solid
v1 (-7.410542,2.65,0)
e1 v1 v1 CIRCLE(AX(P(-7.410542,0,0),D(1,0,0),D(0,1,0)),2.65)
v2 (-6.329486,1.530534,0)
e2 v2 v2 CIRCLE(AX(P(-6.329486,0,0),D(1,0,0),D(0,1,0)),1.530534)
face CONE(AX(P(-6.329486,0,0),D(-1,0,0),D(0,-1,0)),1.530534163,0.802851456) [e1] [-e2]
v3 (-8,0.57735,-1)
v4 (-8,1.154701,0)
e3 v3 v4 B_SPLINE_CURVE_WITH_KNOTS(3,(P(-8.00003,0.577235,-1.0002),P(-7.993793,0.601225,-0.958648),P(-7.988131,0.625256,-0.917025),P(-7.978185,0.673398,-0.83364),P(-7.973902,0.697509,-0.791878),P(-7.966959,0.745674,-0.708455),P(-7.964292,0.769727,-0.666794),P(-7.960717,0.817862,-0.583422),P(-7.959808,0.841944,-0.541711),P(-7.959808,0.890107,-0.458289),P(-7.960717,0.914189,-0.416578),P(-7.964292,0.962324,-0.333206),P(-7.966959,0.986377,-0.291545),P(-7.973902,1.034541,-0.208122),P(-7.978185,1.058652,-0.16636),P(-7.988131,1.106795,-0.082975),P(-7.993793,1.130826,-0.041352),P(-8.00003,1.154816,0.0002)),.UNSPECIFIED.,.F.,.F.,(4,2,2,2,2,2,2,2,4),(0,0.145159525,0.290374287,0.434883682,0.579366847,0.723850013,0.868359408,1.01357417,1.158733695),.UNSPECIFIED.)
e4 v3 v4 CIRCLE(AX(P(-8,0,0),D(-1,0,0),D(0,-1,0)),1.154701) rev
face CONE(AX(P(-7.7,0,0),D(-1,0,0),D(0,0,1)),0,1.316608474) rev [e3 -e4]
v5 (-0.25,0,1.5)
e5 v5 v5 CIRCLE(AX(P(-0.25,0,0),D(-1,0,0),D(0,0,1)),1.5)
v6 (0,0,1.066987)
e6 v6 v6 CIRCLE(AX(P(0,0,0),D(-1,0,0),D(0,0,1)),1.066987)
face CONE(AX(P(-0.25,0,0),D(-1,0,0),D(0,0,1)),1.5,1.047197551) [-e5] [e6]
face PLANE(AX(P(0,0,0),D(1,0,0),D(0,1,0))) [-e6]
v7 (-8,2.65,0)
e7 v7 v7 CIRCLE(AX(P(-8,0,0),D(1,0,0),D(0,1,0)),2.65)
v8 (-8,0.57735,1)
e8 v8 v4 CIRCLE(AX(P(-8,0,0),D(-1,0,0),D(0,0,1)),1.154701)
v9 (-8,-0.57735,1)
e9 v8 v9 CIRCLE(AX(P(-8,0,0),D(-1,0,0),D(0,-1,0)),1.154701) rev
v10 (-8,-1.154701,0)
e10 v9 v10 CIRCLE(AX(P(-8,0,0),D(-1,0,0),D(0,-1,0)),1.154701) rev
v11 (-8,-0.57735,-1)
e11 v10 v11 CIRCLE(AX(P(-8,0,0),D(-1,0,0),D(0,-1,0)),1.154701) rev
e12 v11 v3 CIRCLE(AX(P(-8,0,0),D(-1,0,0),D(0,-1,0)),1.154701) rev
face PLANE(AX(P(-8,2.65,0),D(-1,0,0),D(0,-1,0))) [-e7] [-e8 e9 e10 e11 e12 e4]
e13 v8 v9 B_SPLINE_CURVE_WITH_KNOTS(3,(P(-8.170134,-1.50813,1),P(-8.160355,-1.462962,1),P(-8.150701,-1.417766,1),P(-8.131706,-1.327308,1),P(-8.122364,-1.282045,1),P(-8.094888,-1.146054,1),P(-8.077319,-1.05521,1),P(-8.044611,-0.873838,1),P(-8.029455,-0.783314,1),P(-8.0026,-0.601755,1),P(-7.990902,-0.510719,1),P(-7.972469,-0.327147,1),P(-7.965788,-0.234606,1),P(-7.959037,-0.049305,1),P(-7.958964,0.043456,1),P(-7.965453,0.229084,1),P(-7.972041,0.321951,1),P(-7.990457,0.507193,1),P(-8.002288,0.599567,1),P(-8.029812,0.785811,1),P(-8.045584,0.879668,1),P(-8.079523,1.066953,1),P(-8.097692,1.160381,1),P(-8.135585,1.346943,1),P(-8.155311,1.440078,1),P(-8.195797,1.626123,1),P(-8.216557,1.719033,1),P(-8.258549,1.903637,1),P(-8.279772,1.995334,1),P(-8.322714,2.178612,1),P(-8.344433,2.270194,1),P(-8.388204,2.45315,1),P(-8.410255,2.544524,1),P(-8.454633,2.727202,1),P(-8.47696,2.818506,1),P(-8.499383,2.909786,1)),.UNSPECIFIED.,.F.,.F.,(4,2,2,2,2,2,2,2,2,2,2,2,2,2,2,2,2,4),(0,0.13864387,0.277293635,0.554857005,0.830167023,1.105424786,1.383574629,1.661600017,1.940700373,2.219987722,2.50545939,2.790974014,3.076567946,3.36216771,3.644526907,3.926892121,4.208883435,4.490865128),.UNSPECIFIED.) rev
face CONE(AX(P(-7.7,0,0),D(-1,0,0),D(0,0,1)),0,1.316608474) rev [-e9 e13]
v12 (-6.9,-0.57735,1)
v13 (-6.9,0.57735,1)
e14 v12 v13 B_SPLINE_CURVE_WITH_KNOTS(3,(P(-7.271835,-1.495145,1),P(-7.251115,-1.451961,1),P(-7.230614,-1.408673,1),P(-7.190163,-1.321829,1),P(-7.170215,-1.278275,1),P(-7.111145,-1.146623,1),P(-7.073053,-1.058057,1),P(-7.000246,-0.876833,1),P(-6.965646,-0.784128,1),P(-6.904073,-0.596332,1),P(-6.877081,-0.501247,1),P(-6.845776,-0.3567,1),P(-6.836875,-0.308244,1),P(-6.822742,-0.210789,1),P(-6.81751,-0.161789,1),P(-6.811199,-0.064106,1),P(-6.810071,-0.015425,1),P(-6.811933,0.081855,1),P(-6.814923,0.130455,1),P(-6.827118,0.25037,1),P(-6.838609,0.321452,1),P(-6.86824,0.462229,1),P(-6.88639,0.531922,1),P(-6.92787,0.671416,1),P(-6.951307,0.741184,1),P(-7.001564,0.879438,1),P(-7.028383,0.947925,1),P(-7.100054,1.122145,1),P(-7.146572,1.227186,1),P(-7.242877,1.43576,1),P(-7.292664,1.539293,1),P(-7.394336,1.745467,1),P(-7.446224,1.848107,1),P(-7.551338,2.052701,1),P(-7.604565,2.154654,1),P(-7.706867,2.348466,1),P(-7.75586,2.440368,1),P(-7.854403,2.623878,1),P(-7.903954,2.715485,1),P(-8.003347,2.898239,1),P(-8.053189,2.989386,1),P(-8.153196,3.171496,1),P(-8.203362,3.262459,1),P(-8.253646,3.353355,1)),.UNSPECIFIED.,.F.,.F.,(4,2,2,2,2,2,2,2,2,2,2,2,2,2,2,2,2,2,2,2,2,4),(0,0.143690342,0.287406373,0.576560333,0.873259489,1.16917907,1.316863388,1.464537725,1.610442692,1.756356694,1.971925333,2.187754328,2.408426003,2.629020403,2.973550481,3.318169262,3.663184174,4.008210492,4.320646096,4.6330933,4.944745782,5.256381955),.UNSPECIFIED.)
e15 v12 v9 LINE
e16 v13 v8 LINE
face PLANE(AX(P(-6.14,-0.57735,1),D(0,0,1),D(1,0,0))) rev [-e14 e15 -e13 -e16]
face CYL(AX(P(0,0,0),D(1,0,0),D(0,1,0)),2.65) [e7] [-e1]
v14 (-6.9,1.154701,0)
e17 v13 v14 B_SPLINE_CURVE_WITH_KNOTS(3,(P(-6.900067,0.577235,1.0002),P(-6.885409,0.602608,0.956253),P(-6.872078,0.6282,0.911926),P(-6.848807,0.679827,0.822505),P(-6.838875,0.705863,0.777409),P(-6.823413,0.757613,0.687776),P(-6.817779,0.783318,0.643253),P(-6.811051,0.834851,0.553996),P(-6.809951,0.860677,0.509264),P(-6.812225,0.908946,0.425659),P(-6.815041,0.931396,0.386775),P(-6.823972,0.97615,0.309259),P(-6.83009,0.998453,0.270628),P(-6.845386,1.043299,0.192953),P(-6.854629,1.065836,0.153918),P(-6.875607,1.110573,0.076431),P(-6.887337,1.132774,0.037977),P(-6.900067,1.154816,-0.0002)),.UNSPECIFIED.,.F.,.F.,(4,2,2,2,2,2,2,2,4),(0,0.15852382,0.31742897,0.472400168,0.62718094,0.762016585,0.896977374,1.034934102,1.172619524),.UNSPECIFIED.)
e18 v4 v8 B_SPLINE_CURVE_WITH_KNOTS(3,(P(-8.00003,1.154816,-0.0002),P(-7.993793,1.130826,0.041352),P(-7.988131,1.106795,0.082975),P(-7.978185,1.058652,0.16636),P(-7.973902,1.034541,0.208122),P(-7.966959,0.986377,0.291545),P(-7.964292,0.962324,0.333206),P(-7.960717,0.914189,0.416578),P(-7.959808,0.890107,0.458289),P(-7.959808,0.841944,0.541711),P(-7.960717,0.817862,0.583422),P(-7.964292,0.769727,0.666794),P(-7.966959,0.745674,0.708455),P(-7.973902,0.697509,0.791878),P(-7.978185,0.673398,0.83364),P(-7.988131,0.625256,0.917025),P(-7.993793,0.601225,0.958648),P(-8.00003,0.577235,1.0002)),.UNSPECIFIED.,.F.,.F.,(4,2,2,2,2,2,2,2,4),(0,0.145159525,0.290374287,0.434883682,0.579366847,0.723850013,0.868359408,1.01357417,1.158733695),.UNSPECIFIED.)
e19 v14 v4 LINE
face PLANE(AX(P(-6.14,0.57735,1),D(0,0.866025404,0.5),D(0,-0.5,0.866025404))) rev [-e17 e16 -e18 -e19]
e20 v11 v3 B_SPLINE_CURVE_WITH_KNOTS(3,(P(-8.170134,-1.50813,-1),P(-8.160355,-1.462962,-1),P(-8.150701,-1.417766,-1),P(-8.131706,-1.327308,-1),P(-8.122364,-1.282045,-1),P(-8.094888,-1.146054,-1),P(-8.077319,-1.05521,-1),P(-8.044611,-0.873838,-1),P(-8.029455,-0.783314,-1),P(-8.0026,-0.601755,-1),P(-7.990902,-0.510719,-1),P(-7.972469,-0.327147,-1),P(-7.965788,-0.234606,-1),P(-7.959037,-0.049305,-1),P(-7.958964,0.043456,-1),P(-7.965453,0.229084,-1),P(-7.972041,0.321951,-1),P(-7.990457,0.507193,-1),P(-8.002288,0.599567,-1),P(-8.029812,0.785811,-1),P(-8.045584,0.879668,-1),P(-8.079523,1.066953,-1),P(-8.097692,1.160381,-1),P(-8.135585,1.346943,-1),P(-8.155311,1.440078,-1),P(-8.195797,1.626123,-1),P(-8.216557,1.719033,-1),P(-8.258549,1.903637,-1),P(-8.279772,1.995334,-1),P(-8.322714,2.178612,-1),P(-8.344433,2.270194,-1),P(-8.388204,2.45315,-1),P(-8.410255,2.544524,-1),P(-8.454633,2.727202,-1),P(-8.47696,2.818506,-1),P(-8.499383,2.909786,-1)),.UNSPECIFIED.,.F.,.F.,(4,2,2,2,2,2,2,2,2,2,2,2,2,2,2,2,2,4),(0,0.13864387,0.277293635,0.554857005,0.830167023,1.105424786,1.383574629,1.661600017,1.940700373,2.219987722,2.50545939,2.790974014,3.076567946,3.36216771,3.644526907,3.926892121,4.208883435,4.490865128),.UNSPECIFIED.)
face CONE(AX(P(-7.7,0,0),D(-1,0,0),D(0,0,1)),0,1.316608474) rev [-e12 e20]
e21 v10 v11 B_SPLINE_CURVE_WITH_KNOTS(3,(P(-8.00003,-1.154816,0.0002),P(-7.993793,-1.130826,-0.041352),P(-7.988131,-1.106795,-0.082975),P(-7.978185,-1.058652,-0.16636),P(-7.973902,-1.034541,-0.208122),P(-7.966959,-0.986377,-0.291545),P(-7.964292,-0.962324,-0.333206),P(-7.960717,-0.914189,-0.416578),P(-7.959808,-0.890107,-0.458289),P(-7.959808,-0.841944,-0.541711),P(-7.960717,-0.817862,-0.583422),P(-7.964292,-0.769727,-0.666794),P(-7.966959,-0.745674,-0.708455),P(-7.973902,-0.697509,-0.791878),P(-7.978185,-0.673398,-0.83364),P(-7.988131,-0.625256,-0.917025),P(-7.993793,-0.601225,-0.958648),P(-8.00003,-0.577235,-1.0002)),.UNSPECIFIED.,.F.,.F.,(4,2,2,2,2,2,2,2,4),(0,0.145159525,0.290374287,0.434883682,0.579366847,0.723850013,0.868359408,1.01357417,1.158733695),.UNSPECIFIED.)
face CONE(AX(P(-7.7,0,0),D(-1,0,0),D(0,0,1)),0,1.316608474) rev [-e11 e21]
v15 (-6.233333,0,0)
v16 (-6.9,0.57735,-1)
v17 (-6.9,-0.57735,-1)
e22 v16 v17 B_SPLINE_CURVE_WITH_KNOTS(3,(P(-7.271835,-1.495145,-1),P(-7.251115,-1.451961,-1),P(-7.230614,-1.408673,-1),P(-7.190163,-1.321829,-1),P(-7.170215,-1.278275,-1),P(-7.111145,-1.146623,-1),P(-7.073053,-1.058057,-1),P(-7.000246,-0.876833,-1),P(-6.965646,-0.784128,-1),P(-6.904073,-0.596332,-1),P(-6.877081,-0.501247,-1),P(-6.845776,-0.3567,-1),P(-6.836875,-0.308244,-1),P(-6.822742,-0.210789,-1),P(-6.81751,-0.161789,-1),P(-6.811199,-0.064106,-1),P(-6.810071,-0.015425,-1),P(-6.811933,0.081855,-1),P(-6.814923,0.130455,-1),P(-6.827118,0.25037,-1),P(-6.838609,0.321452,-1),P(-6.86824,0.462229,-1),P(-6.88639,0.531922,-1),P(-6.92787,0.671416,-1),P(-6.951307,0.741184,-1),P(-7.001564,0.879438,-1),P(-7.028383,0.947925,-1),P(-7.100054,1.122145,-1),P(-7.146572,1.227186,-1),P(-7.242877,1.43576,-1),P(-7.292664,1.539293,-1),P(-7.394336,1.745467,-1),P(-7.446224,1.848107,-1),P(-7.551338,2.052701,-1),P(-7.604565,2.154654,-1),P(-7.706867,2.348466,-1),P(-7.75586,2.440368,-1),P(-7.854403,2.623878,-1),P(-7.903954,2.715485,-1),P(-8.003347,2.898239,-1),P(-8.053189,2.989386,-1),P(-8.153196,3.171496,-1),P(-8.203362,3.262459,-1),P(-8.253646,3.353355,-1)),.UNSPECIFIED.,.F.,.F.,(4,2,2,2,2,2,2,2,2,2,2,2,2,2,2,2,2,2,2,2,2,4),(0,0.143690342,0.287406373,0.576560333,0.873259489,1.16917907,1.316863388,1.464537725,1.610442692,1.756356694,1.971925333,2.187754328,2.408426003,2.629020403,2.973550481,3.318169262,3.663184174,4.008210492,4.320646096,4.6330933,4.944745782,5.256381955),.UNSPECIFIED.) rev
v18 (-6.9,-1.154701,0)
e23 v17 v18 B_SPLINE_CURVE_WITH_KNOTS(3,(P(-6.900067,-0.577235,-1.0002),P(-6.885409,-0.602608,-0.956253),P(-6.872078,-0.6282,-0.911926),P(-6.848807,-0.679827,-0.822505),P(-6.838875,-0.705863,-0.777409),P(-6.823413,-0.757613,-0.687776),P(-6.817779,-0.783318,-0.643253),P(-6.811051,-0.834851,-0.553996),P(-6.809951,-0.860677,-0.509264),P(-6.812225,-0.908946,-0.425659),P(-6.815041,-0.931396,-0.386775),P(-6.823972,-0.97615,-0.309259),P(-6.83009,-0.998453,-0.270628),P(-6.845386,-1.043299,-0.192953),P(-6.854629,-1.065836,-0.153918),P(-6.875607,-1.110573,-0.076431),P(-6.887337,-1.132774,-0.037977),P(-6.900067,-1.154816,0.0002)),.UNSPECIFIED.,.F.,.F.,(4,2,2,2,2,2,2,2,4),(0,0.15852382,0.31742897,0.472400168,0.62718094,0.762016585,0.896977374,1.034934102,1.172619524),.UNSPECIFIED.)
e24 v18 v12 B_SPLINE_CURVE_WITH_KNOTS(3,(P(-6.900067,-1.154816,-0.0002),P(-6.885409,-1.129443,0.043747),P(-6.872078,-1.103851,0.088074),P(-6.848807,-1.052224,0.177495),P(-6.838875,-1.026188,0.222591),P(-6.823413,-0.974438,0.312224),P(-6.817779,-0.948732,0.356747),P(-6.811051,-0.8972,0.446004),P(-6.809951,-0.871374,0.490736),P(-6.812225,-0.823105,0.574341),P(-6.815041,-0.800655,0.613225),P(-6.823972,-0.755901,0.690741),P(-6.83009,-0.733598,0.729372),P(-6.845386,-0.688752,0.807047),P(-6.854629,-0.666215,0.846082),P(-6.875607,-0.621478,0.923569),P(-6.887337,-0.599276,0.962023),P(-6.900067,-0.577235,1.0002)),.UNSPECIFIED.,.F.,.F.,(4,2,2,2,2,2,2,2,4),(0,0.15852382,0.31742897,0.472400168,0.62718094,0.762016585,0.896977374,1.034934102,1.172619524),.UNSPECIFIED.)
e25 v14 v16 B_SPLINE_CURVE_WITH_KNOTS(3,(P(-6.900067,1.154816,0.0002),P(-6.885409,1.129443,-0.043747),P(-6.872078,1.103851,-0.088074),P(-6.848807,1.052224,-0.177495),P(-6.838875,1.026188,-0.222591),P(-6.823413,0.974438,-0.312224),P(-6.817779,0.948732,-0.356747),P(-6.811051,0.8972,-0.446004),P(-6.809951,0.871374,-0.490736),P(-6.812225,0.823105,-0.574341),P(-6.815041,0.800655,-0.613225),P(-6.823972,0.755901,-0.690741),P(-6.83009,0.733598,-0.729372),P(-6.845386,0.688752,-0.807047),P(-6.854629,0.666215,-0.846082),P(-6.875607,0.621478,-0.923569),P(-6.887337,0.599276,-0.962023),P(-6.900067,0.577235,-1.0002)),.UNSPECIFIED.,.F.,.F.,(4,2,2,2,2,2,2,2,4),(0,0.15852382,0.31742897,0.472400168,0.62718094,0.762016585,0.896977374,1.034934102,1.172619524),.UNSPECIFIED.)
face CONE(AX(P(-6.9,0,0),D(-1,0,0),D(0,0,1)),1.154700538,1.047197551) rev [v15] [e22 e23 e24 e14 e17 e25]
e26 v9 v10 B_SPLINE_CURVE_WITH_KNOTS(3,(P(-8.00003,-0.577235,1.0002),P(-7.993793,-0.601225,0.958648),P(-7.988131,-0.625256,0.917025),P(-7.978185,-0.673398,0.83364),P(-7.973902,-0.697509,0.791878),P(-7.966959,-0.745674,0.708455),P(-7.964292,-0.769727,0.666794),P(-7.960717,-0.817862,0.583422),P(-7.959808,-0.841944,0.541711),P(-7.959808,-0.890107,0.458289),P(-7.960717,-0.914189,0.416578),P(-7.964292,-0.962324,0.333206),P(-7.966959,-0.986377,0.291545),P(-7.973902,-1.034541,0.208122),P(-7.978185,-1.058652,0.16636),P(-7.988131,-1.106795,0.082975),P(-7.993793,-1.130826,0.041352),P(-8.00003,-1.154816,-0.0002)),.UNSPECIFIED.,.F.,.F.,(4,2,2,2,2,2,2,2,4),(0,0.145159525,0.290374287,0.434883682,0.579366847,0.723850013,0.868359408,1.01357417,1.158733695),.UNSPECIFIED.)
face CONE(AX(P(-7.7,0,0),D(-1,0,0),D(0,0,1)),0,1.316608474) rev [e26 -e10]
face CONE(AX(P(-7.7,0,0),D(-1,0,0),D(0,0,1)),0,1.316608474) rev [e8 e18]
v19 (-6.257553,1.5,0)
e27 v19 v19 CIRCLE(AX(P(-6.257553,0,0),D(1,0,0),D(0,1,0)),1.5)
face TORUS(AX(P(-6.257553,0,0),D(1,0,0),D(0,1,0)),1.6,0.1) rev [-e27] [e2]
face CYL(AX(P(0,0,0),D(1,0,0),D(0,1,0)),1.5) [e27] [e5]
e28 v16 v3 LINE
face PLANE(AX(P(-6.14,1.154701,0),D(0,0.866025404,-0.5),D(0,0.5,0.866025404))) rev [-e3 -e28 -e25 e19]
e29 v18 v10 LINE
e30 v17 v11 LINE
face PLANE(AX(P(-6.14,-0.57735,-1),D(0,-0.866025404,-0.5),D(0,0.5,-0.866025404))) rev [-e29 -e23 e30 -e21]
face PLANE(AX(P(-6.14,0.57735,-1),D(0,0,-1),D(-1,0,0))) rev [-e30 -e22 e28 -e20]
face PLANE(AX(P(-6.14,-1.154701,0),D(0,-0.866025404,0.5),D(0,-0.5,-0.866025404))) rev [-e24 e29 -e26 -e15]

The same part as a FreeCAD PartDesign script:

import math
import FreeCAD as App
import Part
import Sketcher

V = App.Vector
Q = App.Units.Quantity


def add_polygon(sketch, points):
    """Adds a closed chain of lines whose ends are joined by coincident constraints."""
    first, n = sketch.GeometryCount, len(points)
    for a, b in zip(points, points[1:] + points[:1]):
        sketch.addGeometry(Part.LineSegment(App.Vector(*a, 0), App.Vector(*b, 0)), False)
    for i in range(n):
        sketch.addConstraint(Sketcher.Constraint("Coincident", first + i, 2, first + (i + 1) % n, 1))

doc = App.newDocument("Part")
params = doc.addObject("Spreadsheet::Sheet", "Params")
for row, (alias, value) in enumerate([
    ("sketch1_radius", "0.1 mm"),
    ("sketch1_width", "8 mm"),
    ("sketch1_height", "1.5 mm"),
    ("sketch1_height2", "2.65 mm"),
    ("revolution_angle", "360 deg"),
    ("pocket1_length", "1.86 mm"),
    ("sketch3_width", "1.06 mm"),
    ("revolution2_angle", "360 deg"),
    ("sketch4_width", "0.3 mm"),
    ("groove_angle", "360 deg"),
    ("sketch5_width", "0.5 mm"),
    ("groove2_angle", "360 deg"),
], start=1):
    params.set(f"A{row}", alias)
    params.set(f"B{row}", "=" + value)
    params.setAlias(f"B{row}", alias)

body = doc.addObject("PartDesign::Body", "Body")

sketch1 = doc.addObject("Sketcher::SketchObject", "Sketch")
body.addObject(sketch1)
sketch1.AttachmentSupport = (doc.XY_Plane, [""])
sketch1.MapMode = "FlatFace"
sketch1.addGeometry(Part.LineSegment(V(0, 1.5, 0), V(-6.26, 1.5, 0)), False)
sketch1.addGeometry(Part.ArcOfCircle(Part.Circle(V(-6.26, 1.6, 0), V(0, 0, 1), 0.1), math.radians(-136), math.radians(-90)), False)
sketch1.addGeometry(Part.LineSegment(V(-6.33, 1.53, 0), V(-7.41, 2.65, 0)), False)
sketch1.addGeometry(Part.LineSegment(V(-7.41, 2.65, 0), V(-8, 2.65, 0)), False)
sketch1.addGeometry(Part.LineSegment(V(-8, 2.65, 0), V(-8, 0, 0)), False)
sketch1.addGeometry(Part.LineSegment(V(-8, 0, 0), V(0, 0, 0)), False)
sketch1.addGeometry(Part.LineSegment(V(0, 0, 0), V(0, 1.5, 0)), False)
sketch1.addConstraint(Sketcher.Constraint("Tangent", 0, 2, 1, 2))
sketch1.addConstraint(Sketcher.Constraint("Tangent", 1, 1, 2, 1))
sketch1.addConstraint(Sketcher.Constraint("Coincident", 2, 2, 3, 1))
sketch1.addConstraint(Sketcher.Constraint("Coincident", 3, 2, 4, 1))
sketch1.addConstraint(Sketcher.Constraint("Coincident", 4, 2, 5, 1))
sketch1.addConstraint(Sketcher.Constraint("Coincident", 5, 2, 6, 1))
sketch1.addConstraint(Sketcher.Constraint("Coincident", 6, 2, 0, 1))
sketch1.addConstraint(Sketcher.Constraint("Horizontal", 0))
sketch1.addConstraint(Sketcher.Constraint("Horizontal", 3))
sketch1.addConstraint(Sketcher.Constraint("Vertical", 4))
sketch1.addConstraint(Sketcher.Constraint("Horizontal", 5))
sketch1.addConstraint(Sketcher.Constraint("Vertical", 6))
sketch1.addConstraint(Sketcher.Constraint("Coincident", 5, 2, -1, 1))
sketch1.addConstraint(Sketcher.Constraint("Radius", 1, 0.1))
sketch1.addConstraint(Sketcher.Constraint("DistanceX", 5, 1, 5, 2, 8.0))
sketch1.addConstraint(Sketcher.Constraint("Angle", 2, Q("134 deg")))
sketch1.addConstraint(Sketcher.Constraint("DistanceY", 6, 1, 6, 2, 1.5))
sketch1.addConstraint(Sketcher.Constraint("DistanceY", 4, 2, 4, 1, 2.65))
sketch1.addConstraint(Sketcher.Constraint("DistanceX", 0, 2, 0, 1, 6.257553))
sketch1.setExpression("Constraints[13]", "Params.sketch1_radius")
sketch1.setExpression("Constraints[14]", "Params.sketch1_width")
sketch1.setExpression("Constraints[16]", "Params.sketch1_height")
sketch1.setExpression("Constraints[17]", "Params.sketch1_height2")
revolution = doc.addObject("PartDesign::Revolution", "Revolution")
body.addObject(revolution)
revolution.Profile = sketch1
revolution.ReferenceAxis = (sketch1, ["H_Axis"])
revolution.setExpression("Angle", "Params.revolution_angle")

sketch2 = doc.addObject("Sketcher::SketchObject", "Sketch001")
body.addObject(sketch2)
sketch2.AttachmentSupport = (doc.YZ_Plane, [""])
sketch2.MapMode = "FlatFace"
sketch2.AttachmentOffset = App.Placement(V(0, 0, -8), App.Rotation())
add_polygon(sketch2, [(1.2, 0), (0.6, -1), (-0.6, -1), (-1.2, 0), (-0.6, 1), (0.6, 1)])
sketch2.addConstraint(Sketcher.Constraint("Horizontal", 1))
sketch2.addConstraint(Sketcher.Constraint("Horizontal", 4))
sketch2.addConstraint(Sketcher.Constraint("Symmetric", 0, 2, 3, 2, -1, 1))
sketch2.addConstraint(Sketcher.Constraint("Symmetric", 2, 2, 5, 2, -1, 1))
sketch2.addConstraint(Sketcher.Constraint("PointOnObject", 2, 2, -1))
sketch2.addConstraint(Sketcher.Constraint("Parallel", 2, 5))
sketch2.addConstraint(Sketcher.Constraint("Vertical", 1, 2, 3, 2))
sketch2.addConstraint(Sketcher.Constraint("Angle", 0, Q("-120 deg")))
sketch2.addConstraint(Sketcher.Constraint("DistanceY", 0, 2, -1, 1, 1.0))
sketch2.addConstraint(Sketcher.Constraint("DistanceX", 1, 2, 1, 1, 1.154701))
pocket1 = doc.addObject("PartDesign::Pocket", "Pocket")
body.addObject(pocket1)
pocket1.Profile = sketch2
pocket1.setExpression("Length", "Params.pocket1_length")
pocket1.Reversed = True

sketch3 = doc.addObject("Sketcher::SketchObject", "Sketch002")
body.addObject(sketch3)
sketch3.AttachmentSupport = (doc.XY_Plane, [""])
sketch3.MapMode = "FlatFace"
add_polygon(sketch3, [(-6.9, 1.15), (-6.23, 0), (-5.84, 0), (-5.84, 1.15)])
sketch3.addConstraint(Sketcher.Constraint("Horizontal", 1))
sketch3.addConstraint(Sketcher.Constraint("Vertical", 2))
sketch3.addConstraint(Sketcher.Constraint("Horizontal", 3))
sketch3.addConstraint(Sketcher.Constraint("PointOnObject", 0, 2, -1))
sketch3.addConstraint(Sketcher.Constraint("Angle", 0, Q("-60 deg")))
sketch3.addConstraint(Sketcher.Constraint("DistanceX", 3, 2, 3, 1, 1.06))
sketch3.addConstraint(Sketcher.Constraint("DistanceX", 3, 2, -1, 1, 6.9))
sketch3.addConstraint(Sketcher.Constraint("DistanceY", 2, 1, 2, 2, 1.154701))
sketch3.setExpression("Constraints[9]", "Params.sketch3_width")
revolution2 = doc.addObject("PartDesign::Revolution", "Revolution001")
body.addObject(revolution2)
revolution2.Profile = sketch3
revolution2.ReferenceAxis = (sketch3, ["H_Axis"])
revolution2.setExpression("Angle", "Params.revolution2_angle")

sketch4 = doc.addObject("Sketcher::SketchObject", "Sketch003")
body.addObject(sketch4)
sketch4.AttachmentSupport = (doc.XY_Plane, [""])
sketch4.MapMode = "FlatFace"
add_polygon(sketch4, [(-8, 1.15), (-8, 0), (-7.7, 0)])
sketch4.addConstraint(Sketcher.Constraint("Vertical", 0))
sketch4.addConstraint(Sketcher.Constraint("Horizontal", 1))
sketch4.addConstraint(Sketcher.Constraint("PointOnObject", 0, 2, -1))
sketch4.addConstraint(Sketcher.Constraint("DistanceX", 1, 1, 1, 2, 0.3))
sketch4.addConstraint(Sketcher.Constraint("DistanceX", 0, 2, -1, 1, 8.0))
sketch4.addConstraint(Sketcher.Constraint("DistanceY", 0, 2, 0, 1, 1.154701))
sketch4.setExpression("Constraints[6]", "Params.sketch4_width")
groove = doc.addObject("PartDesign::Groove", "Groove")
body.addObject(groove)
groove.Profile = sketch4
groove.ReferenceAxis = (sketch4, ["H_Axis"])
groove.setExpression("Angle", "Params.groove_angle")

sketch5 = doc.addObject("Sketcher::SketchObject", "Sketch004")
body.addObject(sketch5)
sketch5.AttachmentSupport = (doc.XY_Plane, [""])
sketch5.MapMode = "FlatFace"
add_polygon(sketch5, [(-0.2, 1.5), (0, 1.1), (0.2, 1.5)])
sketch5.addConstraint(Sketcher.Constraint("Horizontal", 2))
sketch5.addConstraint(Sketcher.Constraint("PointOnObject", 0, 2, -2))
sketch5.addConstraint(Sketcher.Constraint("Equal", 0, 1))
sketch5.addConstraint(Sketcher.Constraint("Angle", 0, Q("-60 deg")))
sketch5.addConstraint(Sketcher.Constraint("DistanceX", 2, 2, 2, 1, 0.5))
sketch5.addConstraint(Sketcher.Constraint("DistanceY", -1, 1, 1, 2, 1.5))
sketch5.setExpression("Constraints[7]", "Params.sketch5_width")
groove2 = doc.addObject("PartDesign::Groove", "Groove001")
body.addObject(groove2)
groove2.Profile = sketch5
groove2.ReferenceAxis = (sketch5, ["H_Axis"])
groove2.setExpression("Angle", "Params.groove2_angle")

doc.recompute()
